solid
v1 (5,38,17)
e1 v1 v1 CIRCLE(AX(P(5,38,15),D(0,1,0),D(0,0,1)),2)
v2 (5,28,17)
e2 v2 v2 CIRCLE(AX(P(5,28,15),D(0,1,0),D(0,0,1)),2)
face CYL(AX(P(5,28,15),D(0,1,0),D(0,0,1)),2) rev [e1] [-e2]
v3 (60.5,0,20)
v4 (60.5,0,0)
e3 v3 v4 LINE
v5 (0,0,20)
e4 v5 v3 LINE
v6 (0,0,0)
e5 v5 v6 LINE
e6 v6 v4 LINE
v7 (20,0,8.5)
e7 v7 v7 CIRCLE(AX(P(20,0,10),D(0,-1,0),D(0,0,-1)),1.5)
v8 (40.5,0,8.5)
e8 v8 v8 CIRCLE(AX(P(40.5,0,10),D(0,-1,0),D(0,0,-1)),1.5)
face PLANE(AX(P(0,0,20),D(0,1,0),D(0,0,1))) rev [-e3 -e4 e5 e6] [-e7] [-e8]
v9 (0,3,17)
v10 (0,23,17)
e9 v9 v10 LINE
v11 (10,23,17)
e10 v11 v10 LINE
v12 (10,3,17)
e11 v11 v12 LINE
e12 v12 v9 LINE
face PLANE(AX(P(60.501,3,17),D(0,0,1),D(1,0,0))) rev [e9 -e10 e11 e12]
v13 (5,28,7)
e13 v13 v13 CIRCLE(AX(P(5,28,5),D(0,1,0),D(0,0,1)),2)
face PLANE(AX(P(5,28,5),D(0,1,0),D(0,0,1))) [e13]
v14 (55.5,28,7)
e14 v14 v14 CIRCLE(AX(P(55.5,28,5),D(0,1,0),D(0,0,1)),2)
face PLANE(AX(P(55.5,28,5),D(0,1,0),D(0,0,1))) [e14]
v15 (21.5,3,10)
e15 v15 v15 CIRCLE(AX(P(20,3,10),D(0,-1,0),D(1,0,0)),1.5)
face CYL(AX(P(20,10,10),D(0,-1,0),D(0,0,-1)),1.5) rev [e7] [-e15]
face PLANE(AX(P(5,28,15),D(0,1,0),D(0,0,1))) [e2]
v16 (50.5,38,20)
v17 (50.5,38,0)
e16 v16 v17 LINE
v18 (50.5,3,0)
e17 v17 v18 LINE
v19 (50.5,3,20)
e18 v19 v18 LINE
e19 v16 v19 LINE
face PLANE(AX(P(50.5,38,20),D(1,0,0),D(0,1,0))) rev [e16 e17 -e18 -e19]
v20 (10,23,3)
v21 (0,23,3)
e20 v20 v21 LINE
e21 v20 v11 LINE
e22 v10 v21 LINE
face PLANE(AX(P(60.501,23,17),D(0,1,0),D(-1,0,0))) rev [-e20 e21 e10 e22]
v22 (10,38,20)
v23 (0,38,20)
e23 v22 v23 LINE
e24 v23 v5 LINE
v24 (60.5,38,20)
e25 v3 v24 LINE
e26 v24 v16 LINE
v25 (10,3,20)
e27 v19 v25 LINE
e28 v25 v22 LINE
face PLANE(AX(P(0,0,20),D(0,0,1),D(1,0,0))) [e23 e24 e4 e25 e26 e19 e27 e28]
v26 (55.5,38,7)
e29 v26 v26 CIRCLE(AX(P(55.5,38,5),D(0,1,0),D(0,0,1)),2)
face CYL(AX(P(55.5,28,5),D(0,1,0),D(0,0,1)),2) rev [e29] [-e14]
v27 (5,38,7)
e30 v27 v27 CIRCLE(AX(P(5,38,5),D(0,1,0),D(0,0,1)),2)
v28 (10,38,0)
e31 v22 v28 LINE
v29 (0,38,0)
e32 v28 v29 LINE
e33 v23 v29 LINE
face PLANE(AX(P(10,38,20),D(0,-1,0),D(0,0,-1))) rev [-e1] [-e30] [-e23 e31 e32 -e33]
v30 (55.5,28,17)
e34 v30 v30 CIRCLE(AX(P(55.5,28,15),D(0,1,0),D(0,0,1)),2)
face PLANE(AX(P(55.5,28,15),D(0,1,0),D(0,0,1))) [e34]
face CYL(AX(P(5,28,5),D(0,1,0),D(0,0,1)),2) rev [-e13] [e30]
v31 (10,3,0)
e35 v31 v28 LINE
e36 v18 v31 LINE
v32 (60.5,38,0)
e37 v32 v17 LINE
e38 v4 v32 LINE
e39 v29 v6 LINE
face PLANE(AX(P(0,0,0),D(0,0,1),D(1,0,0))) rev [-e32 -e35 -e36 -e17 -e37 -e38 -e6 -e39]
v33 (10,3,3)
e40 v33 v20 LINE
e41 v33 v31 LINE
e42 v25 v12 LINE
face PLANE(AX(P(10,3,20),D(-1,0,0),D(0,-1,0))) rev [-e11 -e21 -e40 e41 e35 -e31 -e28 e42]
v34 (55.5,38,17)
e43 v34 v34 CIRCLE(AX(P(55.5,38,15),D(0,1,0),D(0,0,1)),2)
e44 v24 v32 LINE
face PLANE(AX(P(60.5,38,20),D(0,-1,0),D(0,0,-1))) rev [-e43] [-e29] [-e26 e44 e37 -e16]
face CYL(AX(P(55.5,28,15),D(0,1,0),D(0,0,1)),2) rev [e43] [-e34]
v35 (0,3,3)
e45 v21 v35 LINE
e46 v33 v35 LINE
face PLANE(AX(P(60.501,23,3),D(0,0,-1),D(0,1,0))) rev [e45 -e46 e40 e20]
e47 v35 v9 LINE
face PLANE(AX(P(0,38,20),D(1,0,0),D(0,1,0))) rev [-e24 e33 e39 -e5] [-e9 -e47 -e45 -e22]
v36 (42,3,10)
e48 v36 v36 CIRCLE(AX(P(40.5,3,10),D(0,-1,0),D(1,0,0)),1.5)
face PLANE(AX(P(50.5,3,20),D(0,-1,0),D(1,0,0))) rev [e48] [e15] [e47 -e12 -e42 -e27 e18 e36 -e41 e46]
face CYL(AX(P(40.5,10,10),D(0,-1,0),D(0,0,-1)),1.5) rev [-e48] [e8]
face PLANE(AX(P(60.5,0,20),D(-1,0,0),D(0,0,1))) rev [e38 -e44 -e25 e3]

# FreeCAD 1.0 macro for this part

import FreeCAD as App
import Part
import Sketcher
from FreeCAD import Vector

doc = App.newDocument("Part")
params = doc.addObject("Spreadsheet::Sheet", "Params")
for row, (alias, value) in enumerate([
    ("sketch1_width", "10 mm"),
    ("sketch1_height", "38 mm"),
    ("sketch1_height2", "35 mm"),
    ("sketch1_width2", "60.5 mm"),
    ("pad1_length", "20 mm"),
    ("sketch2_width", "20 mm"),
    ("sketch2_height", "14 mm"),
    ("sketch3_diameter", "4 mm"),
    ("pocket2_length", "10 mm"),
    ("sketch4_diameter", "3 mm"),
    ("pocket3_length", "10 mm"),
], start=1):
    params.set(f"A{row}", alias)
    params.set(f"B{row}", "=" + value)
    params.setAlias(f"B{row}", alias)

body = doc.addObject("PartDesign::Body", "Body")

sketch1 = body.newObject("Sketcher::SketchObject", "Sketch")
sketch1.AttachmentSupport = (doc.getObject("XY_Plane"), [""])
sketch1.MapMode = "FlatFace"
sketch1.addGeometry([
    Part.LineSegment(Vector(0, 0, 0), Vector(60, 0, 0)),
    Part.LineSegment(Vector(60, 0, 0), Vector(60, 38, 0)),
    Part.LineSegment(Vector(60, 38, 0), Vector(50, 38, 0)),
    Part.LineSegment(Vector(50, 38, 0), Vector(50, 3, 0)),
    Part.LineSegment(Vector(50, 3, 0), Vector(10, 3, 0)),
    Part.LineSegment(Vector(10, 3, 0), Vector(10, 38, 0)),
    Part.LineSegment(Vector(10, 38, 0), Vector(0, 38, 0)),
    Part.LineSegment(Vector(0, 38, 0), Vector(0, 0, 0)),
], False)
sketch1.addConstraint([
    Sketcher.Constraint("Coincident", 0, 2, 1, 1),
    Sketcher.Constraint("Coincident", 1, 2, 2, 1),
    Sketcher.Constraint("Coincident", 2, 2, 3, 1),
    Sketcher.Constraint("Coincident", 3, 2, 4, 1),
    Sketcher.Constraint("Coincident", 4, 2, 5, 1),
    Sketcher.Constraint("Coincident", 5, 2, 6, 1),
    Sketcher.Constraint("Coincident", 6, 2, 7, 1),
    Sketcher.Constraint("Coincident", 7, 2, 0, 1),
    Sketcher.Constraint("Horizontal", 0),
    Sketcher.Constraint("Vertical", 1),
    Sketcher.Constraint("Horizontal", 2),
    Sketcher.Constraint("Vertical", 3),
    Sketcher.Constraint("Horizontal", 4),
    Sketcher.Constraint("Vertical", 5),
    Sketcher.Constraint("Horizontal", 6),
    Sketcher.Constraint("Vertical", 7),
    Sketcher.Constraint("Coincident", 7, 2, -1, 1),
    Sketcher.Constraint("Horizontal", 2, 2, 5, 2),
    Sketcher.Constraint("Equal", 2, 6),
    Sketcher.Constraint("DistanceX", 2, 2, 2, 1, 10.0),
    Sketcher.Constraint("DistanceY", 1, 1, 1, 2, 38.0),
    Sketcher.Constraint("DistanceY", 3, 2, 3, 1, 35.0),
    Sketcher.Constraint("DistanceX", 0, 1, 0, 2, 60.5),
])
sketch1.setExpression("Constraints[19]", "Params.sketch1_width")
sketch1.setExpression("Constraints[20]", "Params.sketch1_height")
sketch1.setExpression("Constraints[21]", "Params.sketch1_height2")
sketch1.setExpression("Constraints[22]", "Params.sketch1_width2")
pad1 = body.newObject("PartDesign::Pad", "Pad")
pad1.Profile = sketch1
pad1.setExpression("Length", "Params.pad1_length")

sketch2 = body.newObject("Sketcher::SketchObject", "Sketch001")
sketch2.AttachmentSupport = (doc.getObject("YZ_Plane"), [""])
sketch2.MapMode = "FlatFace"
sketch2.addGeometry([
    Part.LineSegment(Vector(23, 3, 0), Vector(3, 3, 0)),
    Part.LineSegment(Vector(3, 3, 0), Vector(3, 17, 0)),
    Part.LineSegment(Vector(3, 17, 0), Vector(23, 17, 0)),
    Part.LineSegment(Vector(23, 17, 0), Vector(23, 3, 0)),
], False)
sketch2.addConstraint([
    Sketcher.Constraint("Coincident", 0, 2, 1, 1),
    Sketcher.Constraint("Coincident", 1, 2, 2, 1),
    Sketcher.Constraint("Coincident", 2, 2, 3, 1),
    Sketcher.Constraint("Coincident", 3, 2, 0, 1),
    Sketcher.Constraint("Horizontal", 0),
    Sketcher.Constraint("Vertical", 1),
    Sketcher.Constraint("Horizontal", 2),
    Sketcher.Constraint("Vertical", 3),
    Sketcher.Constraint("DistanceX", 0, 2, 0, 1, 20.0),
    Sketcher.Constraint("DistanceY", 1, 1, 1, 2, 14.0),
    Sketcher.Constraint("DistanceX", -1, 1, 0, 2, 3.0),
    Sketcher.Constraint("DistanceY", -1, 1, 0, 2, 3.0),
])
sketch2.setExpression("Constraints[8]", "Params.sketch2_width")
sketch2.setExpression("Constraints[9]", "Params.sketch2_height")
pocket1 = body.newObject("PartDesign::Pocket", "Pocket")
pocket1.Profile = sketch2
pocket1.Type = "UpToFirst"
pocket1.Reversed = True

sketch3 = body.newObject("Sketcher::SketchObject", "Sketch002")
sketch3.AttachmentSupport = (doc.getObject("XZ_Plane"), [""])
sketch3.MapMode = "FlatFace"
sketch3.AttachmentOffset = App.Placement(Vector(0, 0, -38), App.Rotation())
sketch3.addGeometry([
    Part.Circle(Vector(5, 5, 0), Vector(0, 0, 1), 2),
    Part.Circle(Vector(5, 15, 0), Vector(0, 0, 1), 2),
    Part.Circle(Vector(55.5, 5, 0), Vector(0, 0, 1), 2),
    Part.Circle(Vector(55.5, 15, 0), Vector(0, 0, 1), 2),
], False)
sketch3.addConstraint([
    Sketcher.Constraint("Equal", 0, 1),
    Sketcher.Constraint("Equal", 1, 2),
    Sketcher.Constraint("Equal", 2, 3),
    Sketcher.Constraint("Horizontal", 0, 3, 2, 3),
    Sketcher.Constraint("Horizontal", 1, 3, 3, 3),
    Sketcher.Constraint("Vertical", 0, 3, 1, 3),
    Sketcher.Constraint("Vertical", 2, 3, 3, 3),
    Sketcher.Constraint("Diameter", 0, 4.0),
    Sketcher.Constraint("DistanceX", -1, 1, 0, 3, 5.0),
    Sketcher.Constraint("DistanceY", -1, 1, 0, 3, 5.0),
    Sketcher.Constraint("DistanceY", -1, 1, 1, 3, 15.0),
    Sketcher.Constraint("DistanceX", -1, 1, 2, 3, 55.5),
])
sketch3.setExpression("Constraints[7]", "Params.sketch3_diameter")
pocket2 = body.newObject("PartDesign::Pocket", "Pocket001")
pocket2.Profile = sketch3
pocket2.setExpression("Length", "Params.pocket2_length")
pocket2.Reversed = True

sketch4 = body.newObject("Sketcher::SketchObject", "Sketch003")
sketch4.AttachmentSupport = (doc.getObject("XZ_Plane"), [""])
sketch4.MapMode = "FlatFace"
sketch4.addGeometry([
    Part.Circle(Vector(20, 10, 0), Vector(0, 0, 1), 1.5),
    Part.Circle(Vector(40.5, 10, 0), Vector(0, 0, 1), 1.5),
], False)
sketch4.addConstraint([
    Sketcher.Constraint("Equal", 0, 1),
    Sketcher.Constraint("Horizontal", 0, 3, 1, 3),
    Sketcher.Constraint("Diameter", 0, 3.0),
    Sketcher.Constraint("DistanceX", -1, 1, 0, 3, 20.0),
    Sketcher.Constraint("DistanceY", -1, 1, 0, 3, 10.0),
    Sketcher.Constraint("DistanceX", -1, 1, 1, 3, 40.5),
])
sketch4.setExpression("Constraints[2]", "Params.sketch4_diameter")
pocket3 = body.newObject("PartDesign::Pocket", "Pocket002")
pocket3.Profile = sketch4
pocket3.setExpression("Length", "Params.pocket3_length")

doc.recompute()
